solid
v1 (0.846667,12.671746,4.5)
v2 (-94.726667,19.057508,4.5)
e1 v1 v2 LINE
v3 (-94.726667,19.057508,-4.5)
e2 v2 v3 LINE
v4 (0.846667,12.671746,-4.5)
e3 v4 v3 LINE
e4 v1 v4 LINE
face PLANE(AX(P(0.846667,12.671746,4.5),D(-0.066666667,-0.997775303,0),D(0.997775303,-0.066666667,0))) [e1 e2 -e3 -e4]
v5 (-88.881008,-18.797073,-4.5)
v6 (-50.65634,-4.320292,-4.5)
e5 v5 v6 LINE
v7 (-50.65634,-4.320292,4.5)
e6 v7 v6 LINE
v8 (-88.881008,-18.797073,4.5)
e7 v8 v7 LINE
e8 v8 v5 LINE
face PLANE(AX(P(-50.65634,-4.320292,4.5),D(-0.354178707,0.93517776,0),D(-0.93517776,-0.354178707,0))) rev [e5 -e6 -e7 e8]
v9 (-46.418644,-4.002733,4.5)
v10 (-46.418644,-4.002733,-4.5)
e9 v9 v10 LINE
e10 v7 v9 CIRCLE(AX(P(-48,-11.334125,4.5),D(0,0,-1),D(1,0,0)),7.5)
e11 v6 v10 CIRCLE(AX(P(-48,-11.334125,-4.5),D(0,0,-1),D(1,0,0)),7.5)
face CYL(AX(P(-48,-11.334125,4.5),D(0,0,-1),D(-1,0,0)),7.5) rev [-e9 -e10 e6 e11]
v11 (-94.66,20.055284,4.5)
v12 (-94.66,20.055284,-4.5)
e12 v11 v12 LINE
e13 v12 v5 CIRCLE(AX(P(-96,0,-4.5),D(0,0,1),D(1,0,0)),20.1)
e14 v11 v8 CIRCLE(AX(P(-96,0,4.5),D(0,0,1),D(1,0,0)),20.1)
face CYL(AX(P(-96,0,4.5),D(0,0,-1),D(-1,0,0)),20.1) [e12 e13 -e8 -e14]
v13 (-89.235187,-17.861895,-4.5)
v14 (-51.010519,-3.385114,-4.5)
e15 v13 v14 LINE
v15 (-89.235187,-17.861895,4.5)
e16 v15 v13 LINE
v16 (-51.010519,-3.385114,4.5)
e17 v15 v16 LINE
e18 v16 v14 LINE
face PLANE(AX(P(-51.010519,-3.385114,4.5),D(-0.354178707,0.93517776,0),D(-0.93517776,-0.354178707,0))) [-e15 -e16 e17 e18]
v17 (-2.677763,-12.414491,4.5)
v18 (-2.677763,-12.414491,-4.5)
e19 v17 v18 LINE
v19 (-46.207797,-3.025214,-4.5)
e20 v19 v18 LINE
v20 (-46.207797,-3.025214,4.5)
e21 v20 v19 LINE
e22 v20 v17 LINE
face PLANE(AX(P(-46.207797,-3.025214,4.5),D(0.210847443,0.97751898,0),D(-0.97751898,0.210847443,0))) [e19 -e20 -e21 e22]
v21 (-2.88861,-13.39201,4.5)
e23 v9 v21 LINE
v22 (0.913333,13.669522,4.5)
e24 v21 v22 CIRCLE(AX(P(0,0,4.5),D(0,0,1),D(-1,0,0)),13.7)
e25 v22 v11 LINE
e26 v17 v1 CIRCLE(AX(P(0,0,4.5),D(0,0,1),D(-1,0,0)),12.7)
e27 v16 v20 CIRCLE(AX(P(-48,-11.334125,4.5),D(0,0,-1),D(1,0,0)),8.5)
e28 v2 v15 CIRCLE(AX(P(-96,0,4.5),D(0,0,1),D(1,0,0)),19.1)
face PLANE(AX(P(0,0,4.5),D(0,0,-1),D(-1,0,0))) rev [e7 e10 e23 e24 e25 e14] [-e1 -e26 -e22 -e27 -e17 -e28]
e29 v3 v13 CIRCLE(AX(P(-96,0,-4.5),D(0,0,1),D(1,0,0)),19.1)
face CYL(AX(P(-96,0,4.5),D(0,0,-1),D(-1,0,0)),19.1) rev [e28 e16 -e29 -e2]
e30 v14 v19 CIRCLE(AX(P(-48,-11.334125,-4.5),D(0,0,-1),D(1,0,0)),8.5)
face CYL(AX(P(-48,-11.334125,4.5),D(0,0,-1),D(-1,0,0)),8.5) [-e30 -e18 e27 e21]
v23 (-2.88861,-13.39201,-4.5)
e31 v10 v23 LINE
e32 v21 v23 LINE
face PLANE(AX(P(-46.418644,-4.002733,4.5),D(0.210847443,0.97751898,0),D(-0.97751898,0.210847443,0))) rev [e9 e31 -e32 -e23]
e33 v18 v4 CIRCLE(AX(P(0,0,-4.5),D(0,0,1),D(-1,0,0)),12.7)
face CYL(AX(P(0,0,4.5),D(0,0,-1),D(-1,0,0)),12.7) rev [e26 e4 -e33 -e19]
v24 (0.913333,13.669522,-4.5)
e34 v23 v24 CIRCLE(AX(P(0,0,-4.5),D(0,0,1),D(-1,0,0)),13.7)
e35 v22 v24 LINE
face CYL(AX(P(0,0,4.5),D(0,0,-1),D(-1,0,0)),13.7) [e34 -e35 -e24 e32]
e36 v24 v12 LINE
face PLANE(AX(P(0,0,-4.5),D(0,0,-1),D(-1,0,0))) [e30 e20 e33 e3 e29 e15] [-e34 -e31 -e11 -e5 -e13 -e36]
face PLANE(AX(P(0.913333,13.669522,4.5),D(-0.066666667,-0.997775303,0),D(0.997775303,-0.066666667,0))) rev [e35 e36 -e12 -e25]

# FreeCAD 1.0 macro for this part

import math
import FreeCAD as App
import Part
import Sketcher
from FreeCAD import Vector

doc = App.newDocument("Part")
params = doc.addObject("Spreadsheet::Sheet", "Params")
for row, (alias, value) in enumerate([
    ("sketch1_radius", "20.1 mm"),
    ("sketch1_radius2", "7.5 mm"),
    ("sketch1_radius3", "13.7 mm"),
    ("sketch1_radius4", "8.5 mm"),
    ("pad1_length", "9 mm"),
], start=1):
    params.set(f"A{row}", alias)
    params.set(f"B{row}", "=" + value)
    params.setAlias(f"B{row}", alias)

body = doc.addObject("PartDesign::Body", "Body")

sketch1 = doc.addObject("Sketcher::SketchObject", "Sketch")
body.addObject(sketch1)
sketch1.AttachmentSupport = (doc.XY_Plane, [""])
sketch1.MapMode = "FlatFace"
sketch1.addGeometry([
    Part.LineSegment(Vector(0.913333, 13.669522, 0), Vector(-94.66, 20.055284, 0)),
    Part.ArcOfCircle(Part.Circle(Vector(-96, 0, 0), Vector(0, 0, 1), 20.1), math.radians(86.177446), math.radians(290.743118)),
    Part.LineSegment(Vector(-88.881008, -18.797073, 0), Vector(-50.65634, -4.320292, 0)),
    Part.ArcOfCircle(Part.Circle(Vector(-48, -11.334125, 0), Vector(0, 0, 1), 7.5), math.radians(77.827981), math.radians(110.743118)),
    Part.LineSegment(Vector(-46.418644, -4.002733, 0), Vector(-2.88861, -13.39201, 0)),
    Part.ArcOfCircle(Part.Circle(Vector(0, 0, 0), Vector(0, 0, 1), 13.7), math.radians(-102.172019), math.radians(86.177446)),
    Part.ArcOfCircle(Part.Circle(Vector(-48, -11.334125, 0), Vector(0, 0, 1), 8.5), math.radians(77.827981), math.radians(110.743118)),
    Part.LineSegment(Vector(-51.010519, -3.385114, 0), Vector(-89.235187, -17.861895, 0)),
    Part.ArcOfCircle(Part.Circle(Vector(-96, 0, 0), Vector(0, 0, 1), 19.1), math.radians(86.177446), math.radians(290.743118)),
    Part.LineSegment(Vector(-94.726667, 19.057508, 0), Vector(0.846667, 12.671746, 0)),
    Part.ArcOfCircle(Part.Circle(Vector(0, 0, 0), Vector(0, 0, 1), 12.7), math.radians(-102.172019), math.radians(86.177446)),
    Part.LineSegment(Vector(-2.677763, -12.414491, 0), Vector(-46.207797, -3.025214, 0)),
], False)
sketch1.addConstraint([
    Sketcher.Constraint("Tangent", 0, 2, 1, 1),
    Sketcher.Constraint("Tangent", 1, 2, 2, 1),
    Sketcher.Constraint("Tangent", 2, 2, 3, 2),
    Sketcher.Constraint("Tangent", 3, 1, 4, 1),
    Sketcher.Constraint("Tangent", 4, 2, 5, 1),
    Sketcher.Constraint("Tangent", 5, 2, 0, 1),
    Sketcher.Constraint("Tangent", 6, 2, 7, 1),
    Sketcher.Constraint("Tangent", 7, 2, 8, 2),
    Sketcher.Constraint("Tangent", 8, 1, 9, 1),
    Sketcher.Constraint("Tangent", 9, 2, 10, 2),
    Sketcher.Constraint("Tangent", 10, 1, 11, 1),
    Sketcher.Constraint("Tangent", 11, 2, 6, 1),
    Sketcher.Constraint("Coincident", 5, 3, -1, 1),
    Sketcher.Constraint("Coincident", 10, 3, -1, 1),
    Sketcher.Constraint("Coincident", 6, 3, 3, 3),
    Sketcher.Constraint("Coincident", 8, 3, 1, 3),
    Sketcher.Constraint("PointOnObject", 1, 3, -1),
    Sketcher.Constraint("Parallel", 2, 7),
    Sketcher.Constraint("Parallel", 0, 9),
    Sketcher.Constraint("Radius", 1, 20.1),
    Sketcher.Constraint("Radius", 3, 7.5),
    Sketcher.Constraint("Radius", 5, 13.7),
    Sketcher.Constraint("Radius", 6, 8.5),
    Sketcher.Constraint("DistanceX", 1, 3, -1, 1, 96.0),
    Sketcher.Constraint("DistanceX", 3, 3, -1, 1, 48.0),
    Sketcher.Constraint("DistanceY", 6, 2, 11, 2, 0.3599),
])
sketch1.setExpression("Constraints[19]", "Params.sketch1_radius")
sketch1.setExpression("Constraints[20]", "Params.sketch1_radius2")
sketch1.setExpression("Constraints[21]", "Params.sketch1_radius3")
sketch1.setExpression("Constraints[22]", "Params.sketch1_radius4")
pad1 = doc.addObject("PartDesign::Pad", "Pad")
body.addObject(pad1)
pad1.Profile = sketch1
pad1.setExpression("Length", "Params.pad1_length")
pad1.Midplane = True

doc.recompute()
